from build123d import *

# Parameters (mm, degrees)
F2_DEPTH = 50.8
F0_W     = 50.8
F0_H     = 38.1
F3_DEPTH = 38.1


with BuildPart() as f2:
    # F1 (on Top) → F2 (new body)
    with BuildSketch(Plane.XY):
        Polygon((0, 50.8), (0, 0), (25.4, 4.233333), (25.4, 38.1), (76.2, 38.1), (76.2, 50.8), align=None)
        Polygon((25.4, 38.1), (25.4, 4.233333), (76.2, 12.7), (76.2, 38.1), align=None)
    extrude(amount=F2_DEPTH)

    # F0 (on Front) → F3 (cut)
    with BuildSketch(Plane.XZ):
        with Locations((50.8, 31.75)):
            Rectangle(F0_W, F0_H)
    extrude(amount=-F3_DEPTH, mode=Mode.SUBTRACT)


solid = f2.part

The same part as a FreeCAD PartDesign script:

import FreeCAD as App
import Part
import Sketcher
from FreeCAD import Vector
Q = App.Units.Quantity


def add_polygon(sketch, points):
    """Adds a closed chain of lines whose ends are joined by coincident constraints."""
    first, n = sketch.GeometryCount, len(points)
    for a, b in zip(points, points[1:] + points[:1]):
        sketch.addGeometry(Part.LineSegment(App.Vector(*a, 0), App.Vector(*b, 0)), False)
    for i in range(n):
        sketch.addConstraint(Sketcher.Constraint("Coincident", first + i, 2, first + (i + 1) % n, 1))

doc = App.newDocument("Part")
body = doc.addObject("PartDesign::Body", "Body")

# Sketch on XY plane
sketch1 = body.newObject("Sketcher::SketchObject", "Sketch")
sketch1.AttachmentSupport = (doc.getObject("XY_Plane"), [""])
sketch1.MapMode = "FlatFace"
add_polygon(sketch1, [(0, 51), (0, 0), (25, 4), (76, 13), (76, 51)])  # lines 0-4
sketch1.addConstraint([
    Sketcher.Constraint("Vertical", 0),
    Sketcher.Constraint("Vertical", 3),
    Sketcher.Constraint("Horizontal", 4),
    Sketcher.Constraint("Coincident", 0, 2, -1, 1),
    Sketcher.Constraint("Parallel", 1, 2),
    Sketcher.Constraint("DistanceX", 4, 2, 4, 1, Q("3 in")),
    Sketcher.Constraint("DistanceY", 0, 2, 0, 1, Q("2 in")),
    Sketcher.Constraint("DistanceY", 3, 1, 3, 2, Q("1.5 in")),
    Sketcher.Constraint("DistanceX", -1, 1, 1, 2, Q("1 in")),
])
pad1 = body.newObject("PartDesign::Pad", "Pad")
pad1.Profile = sketch1
pad1.Length = Q("2 in")

# Sketch on XZ plane
sketch2 = body.newObject("Sketcher::SketchObject", "Sketch001")
sketch2.AttachmentSupport = (doc.getObject("XZ_Plane"), [""])
sketch2.MapMode = "FlatFace"
add_polygon(sketch2, [(25, 51), (25, 13), (76, 13), (76, 51)])  # lines 0-3
sketch2.addConstraint([
    Sketcher.Constraint("Vertical", 0),
    Sketcher.Constraint("Horizontal", 1),
    Sketcher.Constraint("Vertical", 2),
    Sketcher.Constraint("Horizontal", 3),
    Sketcher.Constraint("DistanceX", 1, 1, 1, 2, Q("2 in")),
    Sketcher.Constraint("DistanceY", 0, 2, 0, 1, Q("1.5 in")),
    Sketcher.Constraint("DistanceX", -1, 1, 0, 2, Q("1 in")),
    Sketcher.Constraint("DistanceY", -1, 1, 2, 2, Q("2 in")),
])
pocket1 = body.newObject("PartDesign::Pocket", "Pocket")
pocket1.Profile = sketch2
pocket1.Length = Q("1.5 in")

doc.recompute()
